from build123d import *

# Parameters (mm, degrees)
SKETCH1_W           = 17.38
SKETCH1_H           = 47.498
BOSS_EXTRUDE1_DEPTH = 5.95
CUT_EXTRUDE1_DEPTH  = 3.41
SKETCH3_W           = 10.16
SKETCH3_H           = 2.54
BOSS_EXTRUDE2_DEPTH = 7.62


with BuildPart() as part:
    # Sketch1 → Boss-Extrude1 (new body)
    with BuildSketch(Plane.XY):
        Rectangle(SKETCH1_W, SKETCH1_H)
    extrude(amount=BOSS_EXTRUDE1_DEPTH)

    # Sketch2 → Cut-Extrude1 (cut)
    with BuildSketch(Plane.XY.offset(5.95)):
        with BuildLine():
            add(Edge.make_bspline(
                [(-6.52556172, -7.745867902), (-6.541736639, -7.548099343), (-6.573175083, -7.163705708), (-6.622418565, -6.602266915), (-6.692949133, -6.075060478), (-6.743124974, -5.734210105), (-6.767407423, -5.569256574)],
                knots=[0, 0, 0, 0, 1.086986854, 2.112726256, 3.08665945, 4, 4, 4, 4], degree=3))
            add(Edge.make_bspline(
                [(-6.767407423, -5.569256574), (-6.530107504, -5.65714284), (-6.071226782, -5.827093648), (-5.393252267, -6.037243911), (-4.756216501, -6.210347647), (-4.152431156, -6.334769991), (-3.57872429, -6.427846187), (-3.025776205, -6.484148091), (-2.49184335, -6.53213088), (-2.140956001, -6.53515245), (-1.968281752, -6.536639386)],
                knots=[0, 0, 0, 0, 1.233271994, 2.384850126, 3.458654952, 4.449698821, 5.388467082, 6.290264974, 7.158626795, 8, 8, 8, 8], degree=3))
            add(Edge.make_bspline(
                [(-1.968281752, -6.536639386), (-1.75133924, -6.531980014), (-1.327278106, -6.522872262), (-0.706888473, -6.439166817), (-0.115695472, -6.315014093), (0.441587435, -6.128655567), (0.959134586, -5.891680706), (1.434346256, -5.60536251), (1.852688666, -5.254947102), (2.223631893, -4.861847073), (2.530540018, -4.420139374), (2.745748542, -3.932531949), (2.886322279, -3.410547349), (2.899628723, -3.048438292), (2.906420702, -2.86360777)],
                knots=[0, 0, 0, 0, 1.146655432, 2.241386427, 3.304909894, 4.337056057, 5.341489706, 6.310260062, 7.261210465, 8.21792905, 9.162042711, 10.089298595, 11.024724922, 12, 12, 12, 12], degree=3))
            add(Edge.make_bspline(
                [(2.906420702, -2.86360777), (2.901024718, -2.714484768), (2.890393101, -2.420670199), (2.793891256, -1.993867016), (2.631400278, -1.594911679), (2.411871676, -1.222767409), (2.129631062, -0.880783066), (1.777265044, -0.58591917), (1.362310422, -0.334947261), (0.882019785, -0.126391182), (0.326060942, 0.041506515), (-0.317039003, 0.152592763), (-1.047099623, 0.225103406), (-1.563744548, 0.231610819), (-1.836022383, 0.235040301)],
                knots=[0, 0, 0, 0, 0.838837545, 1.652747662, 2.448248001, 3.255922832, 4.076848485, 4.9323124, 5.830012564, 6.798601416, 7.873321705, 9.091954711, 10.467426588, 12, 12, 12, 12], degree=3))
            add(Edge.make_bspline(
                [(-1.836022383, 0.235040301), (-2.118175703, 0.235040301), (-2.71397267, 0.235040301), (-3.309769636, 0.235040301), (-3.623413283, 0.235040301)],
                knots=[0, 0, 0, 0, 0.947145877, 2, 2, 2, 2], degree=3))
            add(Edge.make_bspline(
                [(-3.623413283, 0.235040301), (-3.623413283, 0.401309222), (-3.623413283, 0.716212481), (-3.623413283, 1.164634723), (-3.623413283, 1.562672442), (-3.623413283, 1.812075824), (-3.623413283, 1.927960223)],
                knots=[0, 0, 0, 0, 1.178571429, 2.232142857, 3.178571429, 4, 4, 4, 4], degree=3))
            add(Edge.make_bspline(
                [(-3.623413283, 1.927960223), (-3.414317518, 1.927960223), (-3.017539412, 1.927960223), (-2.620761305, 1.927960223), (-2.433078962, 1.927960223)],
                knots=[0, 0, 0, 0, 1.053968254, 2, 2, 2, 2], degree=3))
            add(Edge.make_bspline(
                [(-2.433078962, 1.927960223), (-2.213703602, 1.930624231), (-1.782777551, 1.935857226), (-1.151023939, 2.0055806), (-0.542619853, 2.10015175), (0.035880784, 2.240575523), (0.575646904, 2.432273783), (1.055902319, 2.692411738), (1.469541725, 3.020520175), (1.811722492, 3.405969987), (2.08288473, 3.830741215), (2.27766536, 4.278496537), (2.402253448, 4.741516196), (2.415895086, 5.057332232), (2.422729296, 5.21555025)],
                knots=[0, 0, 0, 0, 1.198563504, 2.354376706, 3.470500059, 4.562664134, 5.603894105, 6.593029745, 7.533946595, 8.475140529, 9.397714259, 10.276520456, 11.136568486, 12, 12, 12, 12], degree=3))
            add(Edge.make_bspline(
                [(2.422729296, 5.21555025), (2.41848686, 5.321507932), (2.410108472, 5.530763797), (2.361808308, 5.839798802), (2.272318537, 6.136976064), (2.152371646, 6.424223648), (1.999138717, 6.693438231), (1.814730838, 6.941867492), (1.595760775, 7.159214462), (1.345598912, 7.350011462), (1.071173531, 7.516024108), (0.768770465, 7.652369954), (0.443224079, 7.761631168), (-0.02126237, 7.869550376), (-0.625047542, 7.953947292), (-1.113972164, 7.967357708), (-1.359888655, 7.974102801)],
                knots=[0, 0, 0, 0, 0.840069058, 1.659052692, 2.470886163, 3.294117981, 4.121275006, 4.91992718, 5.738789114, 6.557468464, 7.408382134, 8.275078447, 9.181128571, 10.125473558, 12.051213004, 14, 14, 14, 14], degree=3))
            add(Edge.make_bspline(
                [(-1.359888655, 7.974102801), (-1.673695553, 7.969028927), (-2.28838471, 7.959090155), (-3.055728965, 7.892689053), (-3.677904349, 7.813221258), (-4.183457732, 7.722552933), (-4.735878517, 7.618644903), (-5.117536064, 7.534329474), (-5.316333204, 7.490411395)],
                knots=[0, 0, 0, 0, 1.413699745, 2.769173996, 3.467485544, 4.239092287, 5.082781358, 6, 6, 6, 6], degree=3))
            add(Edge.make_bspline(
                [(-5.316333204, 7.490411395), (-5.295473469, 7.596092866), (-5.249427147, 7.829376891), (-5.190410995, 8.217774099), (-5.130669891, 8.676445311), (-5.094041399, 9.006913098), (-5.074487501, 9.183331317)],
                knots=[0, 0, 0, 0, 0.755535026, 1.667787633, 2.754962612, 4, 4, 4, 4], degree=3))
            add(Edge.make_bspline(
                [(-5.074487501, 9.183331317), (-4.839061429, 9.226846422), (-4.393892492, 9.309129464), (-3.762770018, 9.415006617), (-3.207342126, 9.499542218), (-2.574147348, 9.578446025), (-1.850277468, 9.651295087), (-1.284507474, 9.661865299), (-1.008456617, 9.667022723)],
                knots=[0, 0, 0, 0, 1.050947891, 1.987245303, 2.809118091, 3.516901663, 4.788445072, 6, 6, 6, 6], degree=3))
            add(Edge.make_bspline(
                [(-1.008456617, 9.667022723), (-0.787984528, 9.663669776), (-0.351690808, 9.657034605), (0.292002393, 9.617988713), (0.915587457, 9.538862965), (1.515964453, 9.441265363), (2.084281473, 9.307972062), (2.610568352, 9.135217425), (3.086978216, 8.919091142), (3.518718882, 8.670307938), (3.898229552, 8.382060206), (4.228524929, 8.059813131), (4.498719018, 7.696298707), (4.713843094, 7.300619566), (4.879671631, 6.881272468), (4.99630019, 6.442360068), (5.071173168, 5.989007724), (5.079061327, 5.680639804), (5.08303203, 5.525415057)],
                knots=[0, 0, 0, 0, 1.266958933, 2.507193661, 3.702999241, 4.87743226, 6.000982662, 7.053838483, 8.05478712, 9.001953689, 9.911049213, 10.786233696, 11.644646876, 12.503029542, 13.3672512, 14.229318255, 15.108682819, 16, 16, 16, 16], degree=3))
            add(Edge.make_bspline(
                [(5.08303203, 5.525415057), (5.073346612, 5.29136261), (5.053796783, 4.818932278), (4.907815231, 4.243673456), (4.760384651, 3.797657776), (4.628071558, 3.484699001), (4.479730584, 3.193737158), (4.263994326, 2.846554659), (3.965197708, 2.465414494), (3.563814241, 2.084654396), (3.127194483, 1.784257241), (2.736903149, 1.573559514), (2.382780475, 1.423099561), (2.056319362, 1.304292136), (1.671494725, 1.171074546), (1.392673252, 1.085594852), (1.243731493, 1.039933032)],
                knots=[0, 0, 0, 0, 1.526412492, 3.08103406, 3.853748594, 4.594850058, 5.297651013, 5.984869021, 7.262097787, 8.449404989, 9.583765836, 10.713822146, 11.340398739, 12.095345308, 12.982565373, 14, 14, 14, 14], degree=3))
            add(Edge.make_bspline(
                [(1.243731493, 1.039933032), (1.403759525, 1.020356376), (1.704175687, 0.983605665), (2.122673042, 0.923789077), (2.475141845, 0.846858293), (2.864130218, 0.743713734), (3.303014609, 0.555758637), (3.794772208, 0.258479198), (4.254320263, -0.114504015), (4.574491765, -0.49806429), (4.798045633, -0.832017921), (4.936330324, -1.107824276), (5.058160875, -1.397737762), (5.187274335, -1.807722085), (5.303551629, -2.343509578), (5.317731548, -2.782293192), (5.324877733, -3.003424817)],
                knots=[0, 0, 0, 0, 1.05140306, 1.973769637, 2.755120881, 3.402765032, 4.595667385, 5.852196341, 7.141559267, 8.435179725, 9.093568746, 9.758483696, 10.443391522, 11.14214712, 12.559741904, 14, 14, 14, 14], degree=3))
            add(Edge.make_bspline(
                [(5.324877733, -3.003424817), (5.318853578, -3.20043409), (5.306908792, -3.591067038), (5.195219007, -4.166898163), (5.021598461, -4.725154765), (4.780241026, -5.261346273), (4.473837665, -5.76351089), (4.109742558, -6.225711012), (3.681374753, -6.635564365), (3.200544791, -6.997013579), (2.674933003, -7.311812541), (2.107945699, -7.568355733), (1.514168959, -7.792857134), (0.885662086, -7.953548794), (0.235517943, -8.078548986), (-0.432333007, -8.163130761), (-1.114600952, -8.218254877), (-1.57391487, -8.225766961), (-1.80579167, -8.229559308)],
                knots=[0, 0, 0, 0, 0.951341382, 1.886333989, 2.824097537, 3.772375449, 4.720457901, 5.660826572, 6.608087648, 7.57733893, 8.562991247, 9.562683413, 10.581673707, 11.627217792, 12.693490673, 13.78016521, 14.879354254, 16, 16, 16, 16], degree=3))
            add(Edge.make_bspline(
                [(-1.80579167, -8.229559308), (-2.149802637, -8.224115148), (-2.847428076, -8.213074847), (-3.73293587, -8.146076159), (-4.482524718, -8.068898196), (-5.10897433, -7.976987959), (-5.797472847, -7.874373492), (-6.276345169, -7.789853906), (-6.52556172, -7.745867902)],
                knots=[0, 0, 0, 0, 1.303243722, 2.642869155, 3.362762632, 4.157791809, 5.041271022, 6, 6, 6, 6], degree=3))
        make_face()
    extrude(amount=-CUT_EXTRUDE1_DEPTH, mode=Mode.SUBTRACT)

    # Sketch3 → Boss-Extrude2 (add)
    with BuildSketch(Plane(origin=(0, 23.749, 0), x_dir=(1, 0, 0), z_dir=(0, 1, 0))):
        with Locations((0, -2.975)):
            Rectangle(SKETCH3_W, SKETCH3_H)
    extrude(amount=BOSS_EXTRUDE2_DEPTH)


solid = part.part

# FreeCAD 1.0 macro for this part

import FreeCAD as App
import Part
import Sketcher

V = App.Vector
Q = App.Units.Quantity


def add_polygon(sketch, points):
    """Adds a closed chain of lines whose ends are joined by coincident constraints."""
    first, n = sketch.GeometryCount, len(points)
    for a, b in zip(points, points[1:] + points[:1]):
        sketch.addGeometry(Part.LineSegment(App.Vector(*a, 0), App.Vector(*b, 0)), False)
    for i in range(n):
        sketch.addConstraint(Sketcher.Constraint("Coincident", first + i, 2, first + (i + 1) % n, 1))

doc = App.newDocument("Part")
body = doc.addObject("PartDesign::Body", "Body")

sketch1 = doc.addObject("Sketcher::SketchObject", "Sketch")
body.addObject(sketch1)
sketch1.AttachmentSupport = (doc.XY_Plane, [""])
sketch1.MapMode = "FlatFace"
add_polygon(sketch1, [(-9, 24), (-9, -24), (9, -24), (9, 24)])
sketch1.addConstraint([
    Sketcher.Constraint("Vertical", 0),
    Sketcher.Constraint("Horizontal", 1),
    Sketcher.Constraint("Vertical", 2),
    Sketcher.Constraint("Horizontal", 3),
    Sketcher.Constraint("Symmetric", 0, 2, 2, 2, -1, 1),
    Sketcher.Constraint("DistanceY", 0, 2, 0, 1, Q("1.87 in")),
    Sketcher.Constraint("DistanceX", 1, 1, 1, 2, 17.38),
])
pad1 = doc.addObject("PartDesign::Pad", "Pad")
body.addObject(pad1)
pad1.Profile = sketch1
pad1.Length = 5.95

sketch2 = doc.addObject("Sketcher::SketchObject", "Sketch001")
body.addObject(sketch2)
sketch2.AttachmentSupport = (doc.XY_Plane, [""])
sketch2.MapMode = "FlatFace"
sketch2.AttachmentOffset = App.Placement(V(0, 0, 5.95), App.Rotation())
sketch2.addGeometry([
    Part.BSplineCurve([V(-6.525562, -7.745868, 0), V(-6.541737, -7.548099, 0), V(-6.573175, -7.163706, 0), V(-6.622419, -6.602267, 0), V(-6.692949, -6.07506, 0), V(-6.743125, -5.73421, 0), V(-6.767407, -5.569257, 0)], [4, 1, 1, 1, 4], [0, 1.086986854, 2.112726256, 3.08665945, 4], False, 3, [1, 1, 1, 1, 1, 1, 1], False),
    Part.BSplineCurve([V(-1.805792, -8.229559, 0), V(-2.149803, -8.224115, 0), V(-2.847428, -8.213075, 0), V(-3.732936, -8.146076, 0), V(-4.482525, -8.068898, 0), V(-5.108974, -7.976988, 0), V(-5.797473, -7.874373, 0), V(-6.276345, -7.789854, 0), V(-6.525562, -7.745868, 0)], [4, 1, 1, 1, 1, 1, 4], [0, 1.303243722, 2.642869155, 3.362762632, 4.157791809, 5.041271022, 6], False, 3, [1, 1, 1, 1, 1, 1, 1, 1, 1], False),
    Part.BSplineCurve([V(5.324878, -3.003425, 0), V(5.318854, -3.200434, 0), V(5.306909, -3.591067, 0), V(5.195219, -4.166898, 0), V(5.021598, -4.725155, 0), V(4.780241, -5.261346, 0), V(4.473838, -5.763511, 0), V(4.109743, -6.225711, 0), V(3.681375, -6.635564, 0), V(3.200545, -6.997014, 0), V(2.674933, -7.311813, 0), V(2.107946, -7.568356, 0), V(1.514169, -7.792857, 0), V(0.885662, -7.953549, 0), V(0.235518, -8.078549, 0), V(-0.432333, -8.163131, 0), V(-1.114601, -8.218255, 0), V(-1.573915, -8.225767, 0), V(-1.805792, -8.229559, 0)], [4, 1, 1, 1, 1, 1, 1, 1, 1, 1, 1, 1, 1, 1, 1, 1, 4], [0, 0.951341382, 1.886333989, 2.824097537, 3.772375449, 4.720457901, 5.660826572, 6.608087648, 7.57733893, 8.562991247, 9.562683413, 10.581673707, 11.627217792, 12.693490673, 13.78016521, 14.879354254, 16], False, 3, [1, 1, 1, 1, 1, 1, 1, 1, 1, 1, 1, 1, 1, 1, 1, 1, 1, 1, 1], False),
    Part.BSplineCurve([V(1.243731, 1.039933, 0), V(1.40376, 1.020356, 0), V(1.704176, 0.983606, 0), V(2.122673, 0.923789, 0), V(2.475142, 0.846858, 0), V(2.86413, 0.743714, 0), V(3.303015, 0.555759, 0), V(3.794772, 0.258479, 0), V(4.25432, -0.114504, 0), V(4.574492, -0.498064, 0), V(4.798046, -0.832018, 0), V(4.93633, -1.107824, 0), V(5.058161, -1.397738, 0), V(5.187274, -1.807722, 0), V(5.303552, -2.34351, 0), V(5.317732, -2.782293, 0), V(5.324878, -3.003425, 0)], [4, 1, 1, 1, 1, 1, 1, 1, 1, 1, 1, 1, 1, 1, 4], [0, 1.05140306, 1.973769637, 2.755120881, 3.402765032, 4.595667385, 5.852196341, 7.141559267, 8.435179725, 9.093568746, 9.758483696, 10.443391522, 11.14214712, 12.559741904, 14], False, 3, [1, 1, 1, 1, 1, 1, 1, 1, 1, 1, 1, 1, 1, 1, 1, 1, 1], False),
    Part.BSplineCurve([V(5.083032, 5.525415, 0), V(5.073347, 5.291363, 0), V(5.053797, 4.818932, 0), V(4.907815, 4.243673, 0), V(4.760385, 3.797658, 0), V(4.628072, 3.484699, 0), V(4.479731, 3.193737, 0), V(4.263994, 2.846555, 0), V(3.965198, 2.465414, 0), V(3.563814, 2.084654, 0), V(3.127194, 1.784257, 0), V(2.736903, 1.57356, 0), V(2.38278, 1.4231, 0), V(2.056319, 1.304292, 0), V(1.671495, 1.171075, 0), V(1.392673, 1.085595, 0), V(1.243731, 1.039933, 0)], [4, 1, 1, 1, 1, 1, 1, 1, 1, 1, 1, 1, 1, 1, 4], [0, 1.526412492, 3.08103406, 3.853748594, 4.594850058, 5.297651013, 5.984869021, 7.262097787, 8.449404989, 9.583765836, 10.713822146, 11.340398739, 12.095345308, 12.982565373, 14], False, 3, [1, 1, 1, 1, 1, 1, 1, 1, 1, 1, 1, 1, 1, 1, 1, 1, 1], False),
    Part.BSplineCurve([V(-1.008457, 9.667023, 0), V(-0.787985, 9.66367, 0), V(-0.351691, 9.657035, 0), V(0.292002, 9.617989, 0), V(0.915587, 9.538863, 0), V(1.515964, 9.441265, 0), V(2.084281, 9.307972, 0), V(2.610568, 9.135217, 0), V(3.086978, 8.919091, 0), V(3.518719, 8.670308, 0), V(3.89823, 8.38206, 0), V(4.228525, 8.059813, 0), V(4.498719, 7.696299, 0), V(4.713843, 7.30062, 0), V(4.879672, 6.881272, 0), V(4.9963, 6.44236, 0), V(5.071173, 5.989008, 0), V(5.079061, 5.68064, 0), V(5.083032, 5.525415, 0)], [4, 1, 1, 1, 1, 1, 1, 1, 1, 1, 1, 1, 1, 1, 1, 1, 4], [0, 1.266958933, 2.507193661, 3.702999241, 4.87743226, 6.000982662, 7.053838483, 8.05478712, 9.001953689, 9.911049213, 10.786233696, 11.644646876, 12.503029542, 13.3672512, 14.229318255, 15.108682819, 16], False, 3, [1, 1, 1, 1, 1, 1, 1, 1, 1, 1, 1, 1, 1, 1, 1, 1, 1, 1, 1], False),
    Part.BSplineCurve([V(-5.074488, 9.183331, 0), V(-4.839061, 9.226846, 0), V(-4.393892, 9.309129, 0), V(-3.76277, 9.415007, 0), V(-3.207342, 9.499542, 0), V(-2.574147, 9.578446, 0), V(-1.850277, 9.651295, 0), V(-1.284507, 9.661865, 0), V(-1.008457, 9.667023, 0)], [4, 1, 1, 1, 1, 1, 4], [0, 1.050947891, 1.987245303, 2.809118091, 3.516901663, 4.788445072, 6], False, 3, [1, 1, 1, 1, 1, 1, 1, 1, 1], False),
    Part.BSplineCurve([V(-5.316333, 7.490411, 0), V(-5.295473, 7.596093, 0), V(-5.249427, 7.829377, 0), V(-5.190411, 8.217774, 0), V(-5.13067, 8.676445, 0), V(-5.094041, 9.006913, 0), V(-5.074488, 9.183331, 0)], [4, 1, 1, 1, 4], [0, 0.755535026, 1.667787633, 2.754962612, 4], False, 3, [1, 1, 1, 1, 1, 1, 1], False),
    Part.BSplineCurve([V(-1.359889, 7.974103, 0), V(-1.673696, 7.969029, 0), V(-2.288385, 7.95909, 0), V(-3.055729, 7.892689, 0), V(-3.677904, 7.813221, 0), V(-4.183458, 7.722553, 0), V(-4.735879, 7.618645, 0), V(-5.117536, 7.534329, 0), V(-5.316333, 7.490411, 0)], [4, 1, 1, 1, 1, 1, 4], [0, 1.413699745, 2.769173996, 3.467485544, 4.239092287, 5.082781358, 6], False, 3, [1, 1, 1, 1, 1, 1, 1, 1, 1], False),
    Part.BSplineCurve([V(2.422729, 5.21555, 0), V(2.418487, 5.321508, 0), V(2.410108, 5.530764, 0), V(2.361808, 5.839799, 0), V(2.272319, 6.136976, 0), V(2.152372, 6.424224, 0), V(1.999139, 6.693438, 0), V(1.814731, 6.941867, 0), V(1.595761, 7.159214, 0), V(1.345599, 7.350011, 0), V(1.071174, 7.516024, 0), V(0.76877, 7.65237, 0), V(0.443224, 7.761631, 0), V(-0.021262, 7.86955, 0), V(-0.625048, 7.953947, 0), V(-1.113972, 7.967358, 0), V(-1.359889, 7.974103, 0)], [4, 1, 1, 1, 1, 1, 1, 1, 1, 1, 1, 1, 1, 1, 4], [0, 0.840069058, 1.659052692, 2.470886163, 3.294117981, 4.121275006, 4.91992718, 5.738789114, 6.557468464, 7.408382134, 8.275078447, 9.181128571, 10.125473558, 12.051213004, 14], False, 3, [1, 1, 1, 1, 1, 1, 1, 1, 1, 1, 1, 1, 1, 1, 1, 1, 1], False),
    Part.BSplineCurve([V(-2.433079, 1.92796, 0), V(-2.213704, 1.930624, 0), V(-1.782778, 1.935857, 0), V(-1.151024, 2.005581, 0), V(-0.54262, 2.100152, 0), V(0.035881, 2.240576, 0), V(0.575647, 2.432274, 0), V(1.055902, 2.692412, 0), V(1.469542, 3.02052, 0), V(1.811722, 3.40597, 0), V(2.082885, 3.830741, 0), V(2.277665, 4.278497, 0), V(2.402253, 4.741516, 0), V(2.415895, 5.057332, 0), V(2.422729, 5.21555, 0)], [4, 1, 1, 1, 1, 1, 1, 1, 1, 1, 1, 1, 4], [0, 1.198563504, 2.354376706, 3.470500059, 4.562664134, 5.603894105, 6.593029745, 7.533946595, 8.475140529, 9.397714259, 10.276520456, 11.136568486, 12], False, 3, [1, 1, 1, 1, 1, 1, 1, 1, 1, 1, 1, 1, 1, 1, 1], False),
    Part.BSplineCurve([V(-3.623413, 1.92796, 0), V(-3.414318, 1.92796, 0), V(-3.017539, 1.92796, 0), V(-2.620761, 1.92796, 0), V(-2.433079, 1.92796, 0)], [4, 1, 4], [0, 1.053968254, 2], False, 3, [1, 1, 1, 1, 1], False),
    Part.BSplineCurve([V(-3.623413, 0.23504, 0), V(-3.623413, 0.401309, 0), V(-3.623413, 0.716212, 0), V(-3.623413, 1.164635, 0), V(-3.623413, 1.562672, 0), V(-3.623413, 1.812076, 0), V(-3.623413, 1.92796, 0)], [4, 1, 1, 1, 4], [0, 1.178571429, 2.232142857, 3.178571429, 4], False, 3, [1, 1, 1, 1, 1, 1, 1], False),
    Part.BSplineCurve([V(-1.836022, 0.23504, 0), V(-2.118176, 0.23504, 0), V(-2.713973, 0.23504, 0), V(-3.30977, 0.23504, 0), V(-3.623413, 0.23504, 0)], [4, 1, 4], [0, 0.947145877, 2], False, 3, [1, 1, 1, 1, 1], False),
    Part.BSplineCurve([V(2.906421, -2.863608, 0), V(2.901025, -2.714485, 0), V(2.890393, -2.42067, 0), V(2.793891, -1.993867, 0), V(2.6314, -1.594912, 0), V(2.411872, -1.222767, 0), V(2.129631, -0.880783, 0), V(1.777265, -0.585919, 0), V(1.36231, -0.334947, 0), V(0.88202, -0.126391, 0), V(0.326061, 0.041507, 0), V(-0.317039, 0.152593, 0), V(-1.0471, 0.225103, 0), V(-1.563745, 0.231611, 0), V(-1.836022, 0.23504, 0)], [4, 1, 1, 1, 1, 1, 1, 1, 1, 1, 1, 1, 4], [0, 0.838837545, 1.652747662, 2.448248001, 3.255922832, 4.076848485, 4.9323124, 5.830012564, 6.798601416, 7.873321705, 9.091954711, 10.467426588, 12], False, 3, [1, 1, 1, 1, 1, 1, 1, 1, 1, 1, 1, 1, 1, 1, 1], False),
    Part.BSplineCurve([V(-1.968282, -6.536639, 0), V(-1.751339, -6.53198, 0), V(-1.327278, -6.522872, 0), V(-0.706888, -6.439167, 0), V(-0.115695, -6.315014, 0), V(0.441587, -6.128656, 0), V(0.959135, -5.891681, 0), V(1.434346, -5.605363, 0), V(1.852689, -5.254947, 0), V(2.223632, -4.861847, 0), V(2.53054, -4.420139, 0), V(2.745749, -3.932532, 0), V(2.886322, -3.410547, 0), V(2.899629, -3.048438, 0), V(2.906421, -2.863608, 0)], [4, 1, 1, 1, 1, 1, 1, 1, 1, 1, 1, 1, 4], [0, 1.146655432, 2.241386427, 3.304909894, 4.337056057, 5.341489706, 6.310260062, 7.261210465, 8.21792905, 9.162042711, 10.089298595, 11.024724922, 12], False, 3, [1, 1, 1, 1, 1, 1, 1, 1, 1, 1, 1, 1, 1, 1, 1], False),
    Part.BSplineCurve([V(-6.767407, -5.569257, 0), V(-6.530108, -5.657143, 0), V(-6.071227, -5.827094, 0), V(-5.393252, -6.037244, 0), V(-4.756217, -6.210348, 0), V(-4.152431, -6.33477, 0), V(-3.578724, -6.427846, 0), V(-3.025776, -6.484148, 0), V(-2.491843, -6.532131, 0), V(-2.140956, -6.535152, 0), V(-1.968282, -6.536639, 0)], [4, 1, 1, 1, 1, 1, 1, 1, 4], [0, 1.233271994, 2.384850126, 3.458654952, 4.449698821, 5.388467082, 6.290264974, 7.158626795, 8], False, 3, [1, 1, 1, 1, 1, 1, 1, 1, 1, 1, 1], False),
], False)
sketch2.addConstraint([
    Sketcher.Constraint("Block", 0),
    Sketcher.Constraint("Block", 1),
    Sketcher.Constraint("Block", 2),
    Sketcher.Constraint("Block", 3),
    Sketcher.Constraint("Block", 4),
    Sketcher.Constraint("Block", 5),
    Sketcher.Constraint("Block", 6),
    Sketcher.Constraint("Block", 7),
    Sketcher.Constraint("Block", 8),
    Sketcher.Constraint("Block", 9),
    Sketcher.Constraint("Block", 10),
    Sketcher.Constraint("Block", 11),
    Sketcher.Constraint("Block", 12),
    Sketcher.Constraint("Block", 13),
    Sketcher.Constraint("Block", 14),
    Sketcher.Constraint("Block", 15),
    Sketcher.Constraint("Block", 16),
])
pocket1 = doc.addObject("PartDesign::Pocket", "Pocket")
body.addObject(pocket1)
pocket1.Profile = sketch2
pocket1.Length = 3.41

sketch3 = doc.addObject("Sketcher::SketchObject", "Sketch002")
body.addObject(sketch3)
sketch3.AttachmentSupport = (doc.XZ_Plane, [""])
sketch3.MapMode = "FlatFace"
sketch3.AttachmentOffset = App.Placement(V(0, 0, -0.935 * 25.4), App.Rotation())
add_polygon(sketch3, [(-5.1, 1.7), (-5.1, 4.2), (5.1, 4.2), (5.1, 1.7)])
sketch3.addConstraint([
    Sketcher.Constraint("Vertical", 0),
    Sketcher.Constraint("Horizontal", 1),
    Sketcher.Constraint("Vertical", 2),
    Sketcher.Constraint("Horizontal", 3),
    Sketcher.Constraint("DistanceX", 1, 1, 1, 2, Q("0.4 in")),
    Sketcher.Constraint("DistanceY", 0, 1, 0, 2, Q("0.1 in")),
    Sketcher.Constraint("DistanceX", 0, 2, -1, 1, Q("0.2 in")),
    Sketcher.Constraint("DistanceY", -1, 1, 0, 2, 4.245),
])
pad2 = doc.addObject("PartDesign::Pad", "Pad001")
body.addObject(pad2)
pad2.Profile = sketch3
pad2.Length = Q("0.3 in")
pad2.Reversed = True

doc.recompute()
